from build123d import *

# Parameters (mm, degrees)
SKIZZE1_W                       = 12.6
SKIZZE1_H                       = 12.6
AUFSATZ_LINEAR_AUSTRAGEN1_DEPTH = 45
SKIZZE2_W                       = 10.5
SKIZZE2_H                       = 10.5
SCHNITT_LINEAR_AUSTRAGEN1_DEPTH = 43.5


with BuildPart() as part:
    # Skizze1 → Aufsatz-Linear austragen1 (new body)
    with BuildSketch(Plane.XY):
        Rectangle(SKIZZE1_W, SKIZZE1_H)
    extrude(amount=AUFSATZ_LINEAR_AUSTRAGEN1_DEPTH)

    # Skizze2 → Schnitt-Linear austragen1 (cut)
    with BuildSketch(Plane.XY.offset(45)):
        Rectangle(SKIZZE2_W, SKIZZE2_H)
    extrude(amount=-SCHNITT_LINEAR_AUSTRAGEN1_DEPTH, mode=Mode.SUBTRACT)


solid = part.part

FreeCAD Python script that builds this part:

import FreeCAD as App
import Part
import Sketcher
Q = App.Units.Quantity

doc = App.newDocument("Part")
body = doc.addObject("PartDesign::Body", "Body")

# Sketch on XY plane
sketch1 = body.newObject("Sketcher::SketchObject", "Sketch")
sketch1.AttachmentSupport = (doc.getObject("XY_Plane"), [""])
sketch1.MapMode = "FlatFace"
sketch1.addGeometry([
    Part.LineSegment(App.Vector(-6, 6, 0), App.Vector(-6, -6, 0)),
    Part.LineSegment(App.Vector(-6, -6, 0), App.Vector(6, -6, 0)),
    Part.LineSegment(App.Vector(6, -6, 0), App.Vector(6, 6, 0)),
    Part.LineSegment(App.Vector(6, 6, 0), App.Vector(-6, 6, 0)),
], False)
sketch1.addConstraint([
    Sketcher.Constraint("Coincident", 0, 2, 1, 1),
    Sketcher.Constraint("Coincident", 1, 2, 2, 1),
    Sketcher.Constraint("Coincident", 2, 2, 3, 1),
    Sketcher.Constraint("Coincident", 3, 2, 0, 1),
    Sketcher.Constraint("Vertical", 0),
    Sketcher.Constraint("Horizontal", 1),
    Sketcher.Constraint("Vertical", 2),
    Sketcher.Constraint("Horizontal", 3),
    Sketcher.Constraint("Symmetric", 0, 2, 2, 2, -1, 1),
    Sketcher.Constraint("Equal", 3, 0),
    Sketcher.Constraint("DistanceX", 1, 1, 1, 2, Q("12.6 mm")),
])
pad1 = body.newObject("PartDesign::Pad", "Pad")
pad1.Profile = sketch1
pad1.Length = 45

# Sketch on XY plane
sketch2 = body.newObject("Sketcher::SketchObject", "Sketch001")
sketch2.AttachmentSupport = (doc.getObject("XY_Plane"), [""])
sketch2.MapMode = "FlatFace"
sketch2.AttachmentOffset = App.Placement(App.Vector(0, 0, 45), App.Rotation())
sketch2.addGeometry([
    Part.LineSegment(App.Vector(-5, 5, 0), App.Vector(-5, -5, 0)),
    Part.LineSegment(App.Vector(-5, -5, 0), App.Vector(5, -5, 0)),
    Part.LineSegment(App.Vector(5, -5, 0), App.Vector(5, 5, 0)),
    Part.LineSegment(App.Vector(5, 5, 0), App.Vector(-5, 5, 0)),
], False)
sketch2.addConstraint([
    Sketcher.Constraint("Coincident", 0, 2, 1, 1),
    Sketcher.Constraint("Coincident", 1, 2, 2, 1),
    Sketcher.Constraint("Coincident", 2, 2, 3, 1),
    Sketcher.Constraint("Coincident", 3, 2, 0, 1),
    Sketcher.Constraint("Vertical", 0),
    Sketcher.Constraint("Horizontal", 1),
    Sketcher.Constraint("Vertical", 2),
    Sketcher.Constraint("Horizontal", 3),
    Sketcher.Constraint("Symmetric", 0, 2, 2, 2, -1, 1),
    Sketcher.Constraint("Equal", 3, 0),
    Sketcher.Constraint("DistanceX", 1, 1, 1, 2, Q("10.5 mm")),
])
pocket1 = body.newObject("PartDesign::Pocket", "Pocket")
pocket1.Profile = sketch2
pocket1.Length = 43.5

doc.recompute()
